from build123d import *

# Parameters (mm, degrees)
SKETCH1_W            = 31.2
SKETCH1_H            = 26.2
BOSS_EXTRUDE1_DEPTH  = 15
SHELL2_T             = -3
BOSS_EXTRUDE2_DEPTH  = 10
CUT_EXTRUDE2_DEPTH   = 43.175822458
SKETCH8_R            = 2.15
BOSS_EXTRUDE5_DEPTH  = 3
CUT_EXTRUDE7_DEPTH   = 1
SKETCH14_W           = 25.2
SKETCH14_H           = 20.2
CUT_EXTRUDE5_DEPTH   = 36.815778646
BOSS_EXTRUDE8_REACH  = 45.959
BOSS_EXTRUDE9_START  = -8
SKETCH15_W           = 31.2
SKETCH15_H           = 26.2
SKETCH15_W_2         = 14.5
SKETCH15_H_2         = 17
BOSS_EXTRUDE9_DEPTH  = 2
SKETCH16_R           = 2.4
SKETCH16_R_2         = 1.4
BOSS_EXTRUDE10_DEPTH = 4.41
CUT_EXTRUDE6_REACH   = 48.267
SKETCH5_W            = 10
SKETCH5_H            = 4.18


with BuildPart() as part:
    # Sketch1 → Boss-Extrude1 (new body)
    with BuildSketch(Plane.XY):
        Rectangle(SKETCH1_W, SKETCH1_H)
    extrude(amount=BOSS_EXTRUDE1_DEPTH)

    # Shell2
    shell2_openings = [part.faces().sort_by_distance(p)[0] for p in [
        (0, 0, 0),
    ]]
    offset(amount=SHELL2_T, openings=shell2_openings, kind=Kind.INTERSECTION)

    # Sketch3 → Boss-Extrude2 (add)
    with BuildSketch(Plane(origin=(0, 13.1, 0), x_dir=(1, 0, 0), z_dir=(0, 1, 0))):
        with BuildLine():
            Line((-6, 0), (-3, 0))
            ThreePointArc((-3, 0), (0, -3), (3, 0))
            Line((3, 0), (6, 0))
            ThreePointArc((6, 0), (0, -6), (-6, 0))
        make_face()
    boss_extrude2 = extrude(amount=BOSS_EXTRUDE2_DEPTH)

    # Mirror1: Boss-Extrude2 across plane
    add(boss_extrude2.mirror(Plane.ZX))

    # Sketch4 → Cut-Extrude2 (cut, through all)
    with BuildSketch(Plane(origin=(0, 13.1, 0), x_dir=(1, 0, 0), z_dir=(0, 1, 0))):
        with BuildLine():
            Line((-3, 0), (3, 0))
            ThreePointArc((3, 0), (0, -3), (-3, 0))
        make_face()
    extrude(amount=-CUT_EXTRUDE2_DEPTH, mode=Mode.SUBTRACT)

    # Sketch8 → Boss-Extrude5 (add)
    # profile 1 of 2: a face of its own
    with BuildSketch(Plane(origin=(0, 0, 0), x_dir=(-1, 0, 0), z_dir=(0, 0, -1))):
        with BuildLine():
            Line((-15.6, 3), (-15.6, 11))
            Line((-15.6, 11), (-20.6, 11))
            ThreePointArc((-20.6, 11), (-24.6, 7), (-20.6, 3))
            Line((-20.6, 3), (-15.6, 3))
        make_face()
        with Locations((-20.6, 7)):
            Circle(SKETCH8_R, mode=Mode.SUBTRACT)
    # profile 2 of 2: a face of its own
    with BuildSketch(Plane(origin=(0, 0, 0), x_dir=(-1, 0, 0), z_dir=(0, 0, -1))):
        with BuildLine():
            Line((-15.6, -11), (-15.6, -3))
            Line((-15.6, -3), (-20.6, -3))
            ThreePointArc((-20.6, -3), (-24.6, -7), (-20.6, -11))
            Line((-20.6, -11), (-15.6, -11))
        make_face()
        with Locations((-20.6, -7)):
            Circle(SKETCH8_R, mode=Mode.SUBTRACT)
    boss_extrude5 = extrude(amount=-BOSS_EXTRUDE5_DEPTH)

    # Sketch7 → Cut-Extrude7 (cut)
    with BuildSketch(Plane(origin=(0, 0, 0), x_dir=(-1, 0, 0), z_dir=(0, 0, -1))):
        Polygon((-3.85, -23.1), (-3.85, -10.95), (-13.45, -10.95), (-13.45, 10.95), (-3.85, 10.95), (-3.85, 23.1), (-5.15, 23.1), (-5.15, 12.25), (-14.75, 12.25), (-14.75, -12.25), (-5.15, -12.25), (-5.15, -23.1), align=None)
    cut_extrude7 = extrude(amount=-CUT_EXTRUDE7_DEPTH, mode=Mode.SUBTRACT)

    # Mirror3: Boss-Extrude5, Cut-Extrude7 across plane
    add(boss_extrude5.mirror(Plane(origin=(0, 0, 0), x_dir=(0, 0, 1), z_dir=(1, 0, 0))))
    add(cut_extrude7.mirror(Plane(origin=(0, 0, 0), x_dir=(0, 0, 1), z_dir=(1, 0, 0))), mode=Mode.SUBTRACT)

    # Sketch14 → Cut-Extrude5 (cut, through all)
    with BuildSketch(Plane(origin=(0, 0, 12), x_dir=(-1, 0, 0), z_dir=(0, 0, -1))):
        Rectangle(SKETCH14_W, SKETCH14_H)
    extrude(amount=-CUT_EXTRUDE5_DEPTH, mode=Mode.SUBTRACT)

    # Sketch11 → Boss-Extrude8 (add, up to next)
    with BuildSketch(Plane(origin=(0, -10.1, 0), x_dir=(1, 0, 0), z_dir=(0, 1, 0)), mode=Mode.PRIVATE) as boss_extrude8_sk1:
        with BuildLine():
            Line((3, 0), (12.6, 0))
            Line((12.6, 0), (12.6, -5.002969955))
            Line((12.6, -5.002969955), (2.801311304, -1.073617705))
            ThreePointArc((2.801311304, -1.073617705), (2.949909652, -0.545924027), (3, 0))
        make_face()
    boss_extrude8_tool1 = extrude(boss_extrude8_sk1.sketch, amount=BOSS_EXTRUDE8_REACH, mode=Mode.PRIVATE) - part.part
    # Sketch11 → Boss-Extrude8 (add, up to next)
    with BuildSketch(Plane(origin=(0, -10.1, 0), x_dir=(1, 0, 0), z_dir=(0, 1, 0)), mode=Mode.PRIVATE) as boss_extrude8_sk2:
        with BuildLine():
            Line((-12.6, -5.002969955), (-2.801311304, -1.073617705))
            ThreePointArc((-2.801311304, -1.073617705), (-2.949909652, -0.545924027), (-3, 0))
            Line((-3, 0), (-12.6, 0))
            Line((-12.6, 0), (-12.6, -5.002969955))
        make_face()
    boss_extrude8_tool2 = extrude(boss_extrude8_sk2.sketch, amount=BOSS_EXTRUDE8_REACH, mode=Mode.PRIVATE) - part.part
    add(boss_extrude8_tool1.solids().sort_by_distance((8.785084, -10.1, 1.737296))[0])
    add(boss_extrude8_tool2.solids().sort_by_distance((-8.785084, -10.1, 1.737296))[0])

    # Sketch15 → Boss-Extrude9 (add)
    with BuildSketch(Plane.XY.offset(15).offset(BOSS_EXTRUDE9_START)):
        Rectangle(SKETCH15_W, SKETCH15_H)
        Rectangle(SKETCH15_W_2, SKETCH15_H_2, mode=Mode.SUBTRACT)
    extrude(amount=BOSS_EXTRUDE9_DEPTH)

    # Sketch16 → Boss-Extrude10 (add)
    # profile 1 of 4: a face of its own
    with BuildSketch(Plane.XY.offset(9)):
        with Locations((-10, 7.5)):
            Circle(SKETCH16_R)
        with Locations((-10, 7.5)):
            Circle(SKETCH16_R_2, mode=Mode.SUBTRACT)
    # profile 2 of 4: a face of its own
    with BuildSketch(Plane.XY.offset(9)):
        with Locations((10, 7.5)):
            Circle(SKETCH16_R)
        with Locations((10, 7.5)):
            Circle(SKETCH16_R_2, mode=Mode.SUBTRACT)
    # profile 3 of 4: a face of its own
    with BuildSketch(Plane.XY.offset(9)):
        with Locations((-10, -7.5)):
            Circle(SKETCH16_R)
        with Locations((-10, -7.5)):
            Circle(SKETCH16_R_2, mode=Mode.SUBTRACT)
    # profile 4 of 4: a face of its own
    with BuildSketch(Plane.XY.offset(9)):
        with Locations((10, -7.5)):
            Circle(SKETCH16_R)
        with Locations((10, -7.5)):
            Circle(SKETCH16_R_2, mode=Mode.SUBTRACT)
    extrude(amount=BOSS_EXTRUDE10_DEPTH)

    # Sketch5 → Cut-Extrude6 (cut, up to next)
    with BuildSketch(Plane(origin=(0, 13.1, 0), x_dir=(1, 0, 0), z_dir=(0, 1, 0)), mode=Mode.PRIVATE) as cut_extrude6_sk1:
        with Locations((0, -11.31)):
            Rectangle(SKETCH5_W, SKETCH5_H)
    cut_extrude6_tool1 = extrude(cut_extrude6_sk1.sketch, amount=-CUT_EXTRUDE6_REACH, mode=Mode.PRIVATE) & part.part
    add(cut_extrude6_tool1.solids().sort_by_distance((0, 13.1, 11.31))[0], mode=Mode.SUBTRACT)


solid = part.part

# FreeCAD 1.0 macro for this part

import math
import FreeCAD as App
import Part
import Sketcher
from FreeCAD import Vector


def faces_at(feature, points):
    """Names of the faces that lie closest to the given points."""
    faces = feature.Shape.Faces
    near = lambda p: min(range(len(faces)), key=lambda i: faces[i].distToShape(Part.Vertex(*p))[0])
    return sorted({f"Face{near(p) + 1}" for p in points})

doc = App.newDocument("Part")
body = doc.addObject("PartDesign::Body", "Body")

sketch1 = body.newObject("Sketcher::SketchObject", "Sketch")
sketch1.AttachmentSupport = (doc.getObject("XY_Plane"), [""])
sketch1.MapMode = "FlatFace"
sketch1.addGeometry([
    Part.LineSegment(Vector(-15.6, 13.1, 0), Vector(-15.6, -13.1, 0)),
    Part.LineSegment(Vector(-15.6, -13.1, 0), Vector(15.6, -13.1, 0)),
    Part.LineSegment(Vector(15.6, -13.1, 0), Vector(15.6, 13.1, 0)),
    Part.LineSegment(Vector(15.6, 13.1, 0), Vector(-15.6, 13.1, 0)),
], False)
sketch1.addConstraint([
    Sketcher.Constraint("Coincident", 0, 2, 1, 1),
    Sketcher.Constraint("Coincident", 1, 2, 2, 1),
    Sketcher.Constraint("Coincident", 2, 2, 3, 1),
    Sketcher.Constraint("Coincident", 3, 2, 0, 1),
    Sketcher.Constraint("Vertical", 0),
    Sketcher.Constraint("Horizontal", 1),
    Sketcher.Constraint("Vertical", 2),
    Sketcher.Constraint("Horizontal", 3),
    Sketcher.Constraint("Symmetric", 0, 2, 2, 2, -1, 1),
    Sketcher.Constraint("DistanceX", 1, 1, 1, 2, 31.2),
    Sketcher.Constraint("DistanceY", 0, 2, 0, 1, 26.2),
])
pad1 = body.newObject("PartDesign::Pad", "Pad")
pad1.Profile = sketch1
pad1.Length = 15
doc.recompute()

thickness = body.newObject("PartDesign::Thickness", "Thickness")
thickness.Base = (pad1, faces_at(pad1, [(0, 0, 0)]))
thickness.Value = 3
thickness.Reversed = True
thickness.Join = "Intersection"

sketch2 = body.newObject("Sketcher::SketchObject", "Sketch001")
sketch2.AttachmentSupport = (doc.getObject("XZ_Plane"), [""])
sketch2.MapMode = "FlatFace"
sketch2.AttachmentOffset = App.Placement(Vector(0, 0, -13.1), App.Rotation())
sketch2.addGeometry([
    Part.LineSegment(Vector(-3, 0, 0), Vector(-6, 0, 0)),
    Part.ArcOfCircle(Part.Circle(Vector(0, 0, 0), Vector(0, 0, 1), 6), math.radians(0), math.radians(180)),
    Part.LineSegment(Vector(6, 0, 0), Vector(3, 0, 0)),
    Part.ArcOfCircle(Part.Circle(Vector(0, 0, 0), Vector(0, 0, 1), 3), math.radians(0), math.radians(180)),
], False)
sketch2.addConstraint([
    Sketcher.Constraint("Coincident", 0, 2, 1, 2),
    Sketcher.Constraint("Coincident", 1, 1, 2, 1),
    Sketcher.Constraint("Coincident", 2, 2, 3, 1),
    Sketcher.Constraint("Coincident", 3, 2, 0, 1),
    Sketcher.Constraint("Horizontal", 0),
    Sketcher.Constraint("Horizontal", 2),
    Sketcher.Constraint("Coincident", 1, 3, -1, 1),
    Sketcher.Constraint("Coincident", 3, 3, -1, 1),
    Sketcher.Constraint("PointOnObject", 0, 2, -1),
    Sketcher.Constraint("PointOnObject", 1, 1, -1),
    Sketcher.Constraint("Radius", 1, 6.0),
    Sketcher.Constraint("Radius", 3, 3.0),
])
pad2 = body.newObject("PartDesign::Pad", "Pad001")
pad2.Profile = sketch2
pad2.Length = 10
pad2.Reversed = True
doc.recompute()

mirrored = body.newObject("PartDesign::Mirrored", "Mirrored")
mirrored.Originals = [pad2]
mirrored.MirrorPlane = (doc.getObject("XZ_Plane"), [""])
body.Tip = mirrored

sketch3 = body.newObject("Sketcher::SketchObject", "Sketch002")
sketch3.AttachmentSupport = (doc.getObject("XZ_Plane"), [""])
sketch3.MapMode = "FlatFace"
sketch3.AttachmentOffset = App.Placement(Vector(0, 0, -13.1), App.Rotation())
sketch3.addGeometry([
    Part.LineSegment(Vector(3, 0, 0), Vector(-3, 0, 0)),
    Part.ArcOfCircle(Part.Circle(Vector(0, 0, 0), Vector(0, 0, 1), 3), math.radians(0), math.radians(180)),
], False)
sketch3.addConstraint([
    Sketcher.Constraint("Coincident", 0, 1, 1, 1),
    Sketcher.Constraint("Coincident", 1, 2, 0, 2),
    Sketcher.Constraint("Horizontal", 0),
    Sketcher.Constraint("Coincident", 1, 3, -1, 1),
    Sketcher.Constraint("PointOnObject", 0, 1, -1),
    Sketcher.Constraint("Radius", 1, 3.0),
])
pocket1 = body.newObject("PartDesign::Pocket", "Pocket")
pocket1.Profile = sketch3
pocket1.Type = "ThroughAll"
pocket1.Reversed = True

sketch4 = body.newObject("Sketcher::SketchObject", "Sketch003")
sketch4.AttachmentSupport = (doc.getObject("XY_Plane"), [""])
sketch4.MapMode = "FlatFace"
sketch4.addGeometry([
    Part.LineSegment(Vector(15.6, 3, 0), Vector(15.6, 11, 0)),
    Part.LineSegment(Vector(15.6, 11, 0), Vector(20.6, 11, 0)),
    Part.ArcOfCircle(Part.Circle(Vector(20.6, 7, 0), Vector(0, 0, 1), 4), math.radians(-90), math.radians(90)),
    Part.LineSegment(Vector(20.6, 3, 0), Vector(15.6, 3, 0)),
    Part.Circle(Vector(20.6, 7, 0), Vector(0, 0, 1), 2.15),
    Part.LineSegment(Vector(15.6, -11, 0), Vector(15.6, -3, 0)),
    Part.LineSegment(Vector(15.6, -3, 0), Vector(20.6, -3, 0)),
    Part.ArcOfCircle(Part.Circle(Vector(20.6, -7, 0), Vector(0, 0, 1), 4), math.radians(-90), math.radians(90)),
    Part.LineSegment(Vector(20.6, -11, 0), Vector(15.6, -11, 0)),
    Part.Circle(Vector(20.6, -7, 0), Vector(0, 0, 1), 2.15),
], False)
sketch4.addConstraint([
    Sketcher.Constraint("Coincident", 0, 2, 1, 1),
    Sketcher.Constraint("Tangent", 1, 2, 2, 2),
    Sketcher.Constraint("Tangent", 2, 1, 3, 1),
    Sketcher.Constraint("Coincident", 3, 2, 0, 1),
    Sketcher.Constraint("Coincident", 5, 2, 6, 1),
    Sketcher.Constraint("Tangent", 6, 2, 7, 2),
    Sketcher.Constraint("Tangent", 7, 1, 8, 1),
    Sketcher.Constraint("Coincident", 8, 2, 5, 1),
    Sketcher.Constraint("Vertical", 0),
    Sketcher.Constraint("Horizontal", 1),
    Sketcher.Constraint("Horizontal", 3),
    Sketcher.Constraint("Vertical", 5),
    Sketcher.Constraint("Horizontal", 6),
    Sketcher.Constraint("Horizontal", 8),
    Sketcher.Constraint("Coincident", 4, 3, 2, 3),
    Sketcher.Constraint("Coincident", 9, 3, 7, 3),
    Sketcher.Constraint("Equal", 2, 7),
    Sketcher.Constraint("Equal", 4, 9),
    Sketcher.Constraint("Symmetric", 2, 3, 7, 3, -1),
    Sketcher.Constraint("Vertical", 3, 2, 5, 2),
    Sketcher.Constraint("Radius", 2, 4.0),
    Sketcher.Constraint("Diameter", 4, 4.3),
    Sketcher.Constraint("DistanceX", 1, 1, 1, 2, 5.0),
    Sketcher.Constraint("DistanceY", -1, 1, 2, 3, 7.0),
    Sketcher.Constraint("DistanceX", -1, 1, 2, 3, 20.6),
])
pad3 = body.newObject("PartDesign::Pad", "Pad002")
pad3.Profile = sketch4
pad3.Length = 3

sketch5 = body.newObject("Sketcher::SketchObject", "Sketch004")
sketch5.AttachmentSupport = (doc.getObject("XY_Plane"), [""])
sketch5.MapMode = "FlatFace"
sketch5.addGeometry([
    Part.LineSegment(Vector(3.85, -23.1, 0), Vector(3.85, -10.95, 0)),
    Part.LineSegment(Vector(3.85, -10.95, 0), Vector(13.45, -10.95, 0)),
    Part.LineSegment(Vector(13.45, -10.95, 0), Vector(13.45, 10.95, 0)),
    Part.LineSegment(Vector(13.45, 10.95, 0), Vector(3.85, 10.95, 0)),
    Part.LineSegment(Vector(3.85, 10.95, 0), Vector(3.85, 23.1, 0)),
    Part.LineSegment(Vector(3.85, 23.1, 0), Vector(5.15, 23.1, 0)),
    Part.LineSegment(Vector(5.15, 23.1, 0), Vector(5.15, 12.25, 0)),
    Part.LineSegment(Vector(5.15, 12.25, 0), Vector(14.75, 12.25, 0)),
    Part.LineSegment(Vector(14.75, 12.25, 0), Vector(14.75, -12.25, 0)),
    Part.LineSegment(Vector(14.75, -12.25, 0), Vector(5.15, -12.25, 0)),
    Part.LineSegment(Vector(5.15, -12.25, 0), Vector(5.15, -23.1, 0)),
    Part.LineSegment(Vector(5.15, -23.1, 0), Vector(3.85, -23.1, 0)),
], False)
sketch5.addConstraint([
    Sketcher.Constraint("Coincident", 0, 2, 1, 1),
    Sketcher.Constraint("Coincident", 1, 2, 2, 1),
    Sketcher.Constraint("Coincident", 2, 2, 3, 1),
    Sketcher.Constraint("Coincident", 3, 2, 4, 1),
    Sketcher.Constraint("Coincident", 4, 2, 5, 1),
    Sketcher.Constraint("Coincident", 5, 2, 6, 1),
    Sketcher.Constraint("Coincident", 6, 2, 7, 1),
    Sketcher.Constraint("Coincident", 7, 2, 8, 1),
    Sketcher.Constraint("Coincident", 8, 2, 9, 1),
    Sketcher.Constraint("Coincident", 9, 2, 10, 1),
    Sketcher.Constraint("Coincident", 10, 2, 11, 1),
    Sketcher.Constraint("Coincident", 11, 2, 0, 1),
    Sketcher.Constraint("Vertical", 0),
    Sketcher.Constraint("Horizontal", 1),
    Sketcher.Constraint("Vertical", 2),
    Sketcher.Constraint("Horizontal", 3),
    Sketcher.Constraint("Vertical", 4),
    Sketcher.Constraint("Horizontal", 5),
    Sketcher.Constraint("Vertical", 6),
    Sketcher.Constraint("Horizontal", 7),
    Sketcher.Constraint("Vertical", 8),
    Sketcher.Constraint("Horizontal", 9),
    Sketcher.Constraint("Vertical", 10),
    Sketcher.Constraint("Horizontal", 11),
    Sketcher.Constraint("Symmetric", 0, 2, 3, 2, -1),
    Sketcher.Constraint("Symmetric", 6, 2, 9, 2, -1),
    Sketcher.Constraint("Equal", 3, 7),
    Sketcher.Constraint("Equal", 0, 4),
    Sketcher.Constraint("DistanceX", 1, 1, 1, 2, 9.6),
    Sketcher.Constraint("DistanceX", 5, 1, 5, 2, 1.3),
    Sketcher.Constraint("DistanceY", 2, 1, 2, 2, 21.9),
    Sketcher.Constraint("DistanceY", 8, 2, 8, 1, 24.5),
    Sketcher.Constraint("DistanceY", 0, 1, 0, 2, 12.15),
    Sketcher.Constraint("DistanceX", -1, 1, 0, 2, 3.85),
])
pocket2 = body.newObject("PartDesign::Pocket", "Pocket001")
pocket2.Profile = sketch5
pocket2.Length = 1
pocket2.Reversed = True
doc.recompute()

mirrored2 = body.newObject("PartDesign::Mirrored", "Mirrored001")
mirrored2.Originals = [pad3, pocket2]
mirrored2.MirrorPlane = (doc.getObject("YZ_Plane"), [""])
body.Tip = mirrored2

sketch6 = body.newObject("Sketcher::SketchObject", "Sketch005")
sketch6.AttachmentSupport = (doc.getObject("XY_Plane"), [""])
sketch6.MapMode = "FlatFace"
sketch6.AttachmentOffset = App.Placement(Vector(0, 0, 12), App.Rotation())
sketch6.addGeometry([
    Part.LineSegment(Vector(12.6, 10.1, 0), Vector(12.6, -10.1, 0)),
    Part.LineSegment(Vector(12.6, -10.1, 0), Vector(-12.6, -10.1, 0)),
    Part.LineSegment(Vector(-12.6, -10.1, 0), Vector(-12.6, 10.1, 0)),
    Part.LineSegment(Vector(-12.6, 10.1, 0), Vector(12.6, 10.1, 0)),
], False)
sketch6.addConstraint([
    Sketcher.Constraint("Coincident", 0, 2, 1, 1),
    Sketcher.Constraint("Coincident", 1, 2, 2, 1),
    Sketcher.Constraint("Coincident", 2, 2, 3, 1),
    Sketcher.Constraint("Coincident", 3, 2, 0, 1),
    Sketcher.Constraint("Vertical", 0),
    Sketcher.Constraint("Horizontal", 1),
    Sketcher.Constraint("Vertical", 2),
    Sketcher.Constraint("Horizontal", 3),
    Sketcher.Constraint("Symmetric", 0, 2, 2, 2, -1, 1),
    Sketcher.Constraint("DistanceX", 1, 2, 1, 1, 25.2),
    Sketcher.Constraint("DistanceY", 0, 2, 0, 1, 20.2),
])
pocket3 = body.newObject("PartDesign::Pocket", "Pocket002")
pocket3.Profile = sketch6
pocket3.Type = "ThroughAll"
pocket3.Reversed = True

sketch7 = body.newObject("Sketcher::SketchObject", "Sketch006")
sketch7.AttachmentSupport = (doc.getObject("XZ_Plane"), [""])
sketch7.MapMode = "FlatFace"
sketch7.AttachmentOffset = App.Placement(Vector(0, 0, 10.1), App.Rotation())
sketch7.addGeometry([
    Part.LineSegment(Vector(12.6, 0, 0), Vector(3, 0, 0)),
    Part.ArcOfCircle(Part.Circle(Vector(0, 0, 0), Vector(0, 0, 1), 3), math.radians(0), math.radians(20.969601)),
    Part.LineSegment(Vector(2.801311, 1.073618, 0), Vector(12.6, 5.00297, 0)),
    Part.LineSegment(Vector(12.6, 5.00297, 0), Vector(12.6, 0, 0)),
], False)
sketch7.addConstraint([
    Sketcher.Constraint("Coincident", 0, 2, 1, 1),
    Sketcher.Constraint("Coincident", 1, 2, 2, 1),
    Sketcher.Constraint("Coincident", 2, 2, 3, 1),
    Sketcher.Constraint("Coincident", 3, 2, 0, 1),
    Sketcher.Constraint("Horizontal", 0),
    Sketcher.Constraint("Vertical", 3),
    Sketcher.Constraint("Coincident", 1, 3, -1, 1),
    Sketcher.Constraint("PointOnObject", 0, 2, -1),
    Sketcher.Constraint("Radius", 1, 3.0),
    Sketcher.Constraint("DistanceX", 0, 2, 0, 1, 9.6),
    Sketcher.Constraint("DistanceY", 3, 2, 3, 1, 5.00297),
    Sketcher.Constraint("DistanceX", -1, 1, 1, 2, 2.801311),
])
pad4 = body.newObject("PartDesign::Pad", "Pad003")
pad4.Profile = sketch7
pad4.Type = "UpToFirst"
pad4.Reversed = True

sketch8 = body.newObject("Sketcher::SketchObject", "Sketch007")
sketch8.AttachmentSupport = (doc.getObject("XZ_Plane"), [""])
sketch8.MapMode = "FlatFace"
sketch8.AttachmentOffset = App.Placement(Vector(0, 0, 10.1), App.Rotation())
sketch8.addGeometry([
    Part.LineSegment(Vector(-12.6, 5.00297, 0), Vector(-2.801311, 1.073618, 0)),
    Part.ArcOfCircle(Part.Circle(Vector(0, 0, 0), Vector(0, 0, 1), 3), math.radians(159.030399), math.radians(180)),
    Part.LineSegment(Vector(-3, 0, 0), Vector(-12.6, 0, 0)),
    Part.LineSegment(Vector(-12.6, 0, 0), Vector(-12.6, 5.00297, 0)),
], False)
sketch8.addConstraint([
    Sketcher.Constraint("Coincident", 0, 2, 1, 1),
    Sketcher.Constraint("Coincident", 1, 2, 2, 1),
    Sketcher.Constraint("Coincident", 2, 2, 3, 1),
    Sketcher.Constraint("Coincident", 3, 2, 0, 1),
    Sketcher.Constraint("Horizontal", 2),
    Sketcher.Constraint("Vertical", 3),
    Sketcher.Constraint("Coincident", 1, 3, -1, 1),
    Sketcher.Constraint("PointOnObject", 1, 2, -1),
    Sketcher.Constraint("Radius", 1, 3.0),
    Sketcher.Constraint("DistanceX", 2, 2, 2, 1, 9.6),
    Sketcher.Constraint("DistanceY", 3, 1, 3, 2, 5.00297),
    Sketcher.Constraint("DistanceX", 0, 2, -1, 1, 2.801311),
])
pad5 = body.newObject("PartDesign::Pad", "Pad004")
pad5.Profile = sketch8
pad5.Type = "UpToFirst"
pad5.Reversed = True

sketch9 = body.newObject("Sketcher::SketchObject", "Sketch008")
sketch9.AttachmentSupport = (doc.getObject("XY_Plane"), [""])
sketch9.MapMode = "FlatFace"
sketch9.AttachmentOffset = App.Placement(Vector(0, 0, 7), App.Rotation())
sketch9.addGeometry([
    Part.LineSegment(Vector(-15.6, 13.1, 0), Vector(-15.6, -13.1, 0)),
    Part.LineSegment(Vector(-15.6, -13.1, 0), Vector(15.6, -13.1, 0)),
    Part.LineSegment(Vector(15.6, -13.1, 0), Vector(15.6, 13.1, 0)),
    Part.LineSegment(Vector(15.6, 13.1, 0), Vector(-15.6, 13.1, 0)),
    Part.LineSegment(Vector(7.25, -8.5, 0), Vector(-7.25, -8.5, 0)),
    Part.LineSegment(Vector(-7.25, -8.5, 0), Vector(-7.25, 8.5, 0)),
    Part.LineSegment(Vector(-7.25, 8.5, 0), Vector(7.25, 8.5, 0)),
    Part.LineSegment(Vector(7.25, 8.5, 0), Vector(7.25, -8.5, 0)),
], False)
sketch9.addConstraint([
    Sketcher.Constraint("Coincident", 0, 2, 1, 1),
    Sketcher.Constraint("Coincident", 1, 2, 2, 1),
    Sketcher.Constraint("Coincident", 2, 2, 3, 1),
    Sketcher.Constraint("Coincident", 3, 2, 0, 1),
    Sketcher.Constraint("Coincident", 4, 2, 5, 1),
    Sketcher.Constraint("Coincident", 5, 2, 6, 1),
    Sketcher.Constraint("Coincident", 6, 2, 7, 1),
    Sketcher.Constraint("Coincident", 7, 2, 4, 1),
    Sketcher.Constraint("Vertical", 0),
    Sketcher.Constraint("Horizontal", 1),
    Sketcher.Constraint("Vertical", 2),
    Sketcher.Constraint("Horizontal", 3),
    Sketcher.Constraint("Horizontal", 4),
    Sketcher.Constraint("Vertical", 5),
    Sketcher.Constraint("Horizontal", 6),
    Sketcher.Constraint("Vertical", 7),
    Sketcher.Constraint("Symmetric", 0, 2, 2, 2, -1, 1),
    Sketcher.Constraint("Symmetric", 4, 2, 6, 2, -1, 1),
    Sketcher.Constraint("DistanceY", 5, 1, 5, 2, 17.0),
    Sketcher.Constraint("DistanceX", 1, 1, 1, 2, 31.2),
    Sketcher.Constraint("DistanceX", 4, 2, 4, 1, 14.5),
    Sketcher.Constraint("DistanceY", 0, 2, 0, 1, 26.2),
])
pad6 = body.newObject("PartDesign::Pad", "Pad005")
pad6.Profile = sketch9
pad6.Length = 2

sketch10 = body.newObject("Sketcher::SketchObject", "Sketch009")
sketch10.AttachmentSupport = (doc.getObject("XY_Plane"), [""])
sketch10.MapMode = "FlatFace"
sketch10.AttachmentOffset = App.Placement(Vector(0, 0, 9), App.Rotation())
sketch10.addGeometry([
    Part.Circle(Vector(-10, 7.5, 0), Vector(0, 0, 1), 2.4),
    Part.Circle(Vector(-10, 7.5, 0), Vector(0, 0, 1), 1.4),
    Part.Circle(Vector(10, 7.5, 0), Vector(0, 0, 1), 2.4),
    Part.Circle(Vector(10, 7.5, 0), Vector(0, 0, 1), 1.4),
    Part.Circle(Vector(-10, -7.5, 0), Vector(0, 0, 1), 2.4),
    Part.Circle(Vector(-10, -7.5, 0), Vector(0, 0, 1), 1.4),
    Part.Circle(Vector(10, -7.5, 0), Vector(0, 0, 1), 2.4),
    Part.Circle(Vector(10, -7.5, 0), Vector(0, 0, 1), 1.4),
], False)
sketch10.addConstraint([
    Sketcher.Constraint("Coincident", 1, 3, 0, 3),
    Sketcher.Constraint("Coincident", 3, 3, 2, 3),
    Sketcher.Constraint("Coincident", 5, 3, 4, 3),
    Sketcher.Constraint("Coincident", 7, 3, 6, 3),
    Sketcher.Constraint("Equal", 0, 2),
    Sketcher.Constraint("Equal", 1, 3),
    Sketcher.Constraint("Equal", 2, 4),
    Sketcher.Constraint("Equal", 3, 5),
    Sketcher.Constraint("Equal", 4, 6),
    Sketcher.Constraint("Equal", 5, 7),
    Sketcher.Constraint("Symmetric", 2, 3, 4, 3, -1, 1),
    Sketcher.Constraint("Symmetric", 0, 3, 6, 3, -1, 1),
    Sketcher.Constraint("Symmetric", 0, 3, 2, 3, -2),
    Sketcher.Constraint("Diameter", 0, 4.8),
    Sketcher.Constraint("Diameter", 1, 2.8),
    Sketcher.Constraint("DistanceX", 0, 3, -1, 1, 10.0),
    Sketcher.Constraint("DistanceY", 4, 3, 0, 3, 15.0),
])
pad7 = body.newObject("PartDesign::Pad", "Pad006")
pad7.Profile = sketch10
pad7.Length = 4.41

sketch11 = body.newObject("Sketcher::SketchObject", "Sketch010")
sketch11.AttachmentSupport = (doc.getObject("XZ_Plane"), [""])
sketch11.MapMode = "FlatFace"
sketch11.AttachmentOffset = App.Placement(Vector(0, 0, -13.1), App.Rotation())
sketch11.addGeometry([
    Part.LineSegment(Vector(-5, 9.22, 0), Vector(-5, 13.4, 0)),
    Part.LineSegment(Vector(-5, 13.4, 0), Vector(5, 13.4, 0)),
    Part.LineSegment(Vector(5, 13.4, 0), Vector(5, 9.22, 0)),
    Part.LineSegment(Vector(5, 9.22, 0), Vector(-5, 9.22, 0)),
], False)
sketch11.addConstraint([
    Sketcher.Constraint("Coincident", 0, 2, 1, 1),
    Sketcher.Constraint("Coincident", 1, 2, 2, 1),
    Sketcher.Constraint("Coincident", 2, 2, 3, 1),
    Sketcher.Constraint("Coincident", 3, 2, 0, 1),
    Sketcher.Constraint("Vertical", 0),
    Sketcher.Constraint("Horizontal", 1),
    Sketcher.Constraint("Vertical", 2),
    Sketcher.Constraint("Horizontal", 3),
    Sketcher.Constraint("DistanceX", 1, 1, 1, 2, 10.0),
    Sketcher.Constraint("DistanceX", 0, 2, -1, 1, 5.0),
    Sketcher.Constraint("DistanceY", 0, 1, 0, 2, 4.18),
    Sketcher.Constraint("DistanceY", -1, 1, 0, 2, 13.4),
])
pocket4 = body.newObject("PartDesign::Pocket", "Pocket003")
pocket4.Profile = sketch11
pocket4.Type = "UpToFirst"
pocket4.Reversed = True

doc.recompute()
